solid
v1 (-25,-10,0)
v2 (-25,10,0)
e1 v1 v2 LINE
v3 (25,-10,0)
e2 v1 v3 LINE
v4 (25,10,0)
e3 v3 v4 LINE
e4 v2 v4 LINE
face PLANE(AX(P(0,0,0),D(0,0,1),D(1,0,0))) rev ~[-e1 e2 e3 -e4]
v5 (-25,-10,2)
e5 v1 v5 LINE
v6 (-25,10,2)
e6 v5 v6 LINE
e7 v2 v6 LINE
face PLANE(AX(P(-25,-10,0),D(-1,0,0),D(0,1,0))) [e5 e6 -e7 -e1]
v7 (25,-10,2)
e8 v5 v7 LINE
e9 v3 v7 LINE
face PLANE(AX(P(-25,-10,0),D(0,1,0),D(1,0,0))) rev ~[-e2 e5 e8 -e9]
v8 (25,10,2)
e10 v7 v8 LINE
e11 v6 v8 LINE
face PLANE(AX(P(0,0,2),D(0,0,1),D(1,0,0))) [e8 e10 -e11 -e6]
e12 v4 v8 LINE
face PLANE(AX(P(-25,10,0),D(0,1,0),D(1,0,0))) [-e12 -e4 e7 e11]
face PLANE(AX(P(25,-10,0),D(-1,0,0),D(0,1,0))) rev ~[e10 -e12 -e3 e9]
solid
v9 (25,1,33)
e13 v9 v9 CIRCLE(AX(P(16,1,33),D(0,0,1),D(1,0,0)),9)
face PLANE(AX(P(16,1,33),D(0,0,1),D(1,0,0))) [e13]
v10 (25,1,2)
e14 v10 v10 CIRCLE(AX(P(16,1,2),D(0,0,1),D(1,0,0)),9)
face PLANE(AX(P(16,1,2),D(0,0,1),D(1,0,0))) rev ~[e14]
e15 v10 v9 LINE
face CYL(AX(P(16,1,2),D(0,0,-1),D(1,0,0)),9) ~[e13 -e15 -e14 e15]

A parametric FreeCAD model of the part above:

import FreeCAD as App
import Part
import Sketcher
from FreeCAD import Vector


def add_polygon(sketch, points):
    """Adds a closed chain of lines whose ends are joined by coincident constraints."""
    first, n = sketch.GeometryCount, len(points)
    for a, b in zip(points, points[1:] + points[:1]):
        sketch.addGeometry(Part.LineSegment(App.Vector(*a, 0), App.Vector(*b, 0)), False)
    for i in range(n):
        sketch.addConstraint(Sketcher.Constraint("Coincident", first + i, 2, first + (i + 1) % n, 1))

doc = App.newDocument("Part")
body = doc.addObject("PartDesign::Body", "Body")

sketch1 = body.newObject("Sketcher::SketchObject", "Sketch")
sketch1.AttachmentSupport = (doc.getObject("XY_Plane"), [""])
sketch1.MapMode = "FlatFace"
add_polygon(sketch1, [(-25, 10), (-25, -10), (25, -10), (25, 10)])
sketch1.addConstraint([
    Sketcher.Constraint("Vertical", 0),
    Sketcher.Constraint("Horizontal", 1),
    Sketcher.Constraint("Vertical", 2),
    Sketcher.Constraint("Horizontal", 3),
    Sketcher.Constraint("Symmetric", 0, 2, 2, 2, -1, 1),
    Sketcher.Constraint("DistanceX", 1, 1, 1, 2, 50.0),
    Sketcher.Constraint("DistanceY", 0, 2, 0, 1, 20.0),
])
pad1 = body.newObject("PartDesign::Pad", "Pad")
pad1.Profile = sketch1
pad1.Length = 2
body2 = doc.addObject("PartDesign::Body", "Body001")

sketch2 = body2.newObject("Sketcher::SketchObject", "Sketch001")
sketch2.AttachmentSupport = (doc.getObject("XY_Plane001"), [""])
sketch2.MapMode = "FlatFace"
sketch2.AttachmentOffset = App.Placement(Vector(0, 0, 2), App.Rotation())
sketch2.addGeometry(Part.Circle(Vector(16, 1, 0), Vector(0, 0, 1), 9), False)
sketch2.addConstraint([
    Sketcher.Constraint("Diameter", 0, 18.0),
    Sketcher.Constraint("DistanceX", -1, 1, 0, 3, 16.0),
    Sketcher.Constraint("DistanceY", -1, 1, 0, 3, 1.0),
])
pad2 = body2.newObject("PartDesign::Pad", "Pad001")
pad2.Profile = sketch2
pad2.Length = 31

doc.recompute()
